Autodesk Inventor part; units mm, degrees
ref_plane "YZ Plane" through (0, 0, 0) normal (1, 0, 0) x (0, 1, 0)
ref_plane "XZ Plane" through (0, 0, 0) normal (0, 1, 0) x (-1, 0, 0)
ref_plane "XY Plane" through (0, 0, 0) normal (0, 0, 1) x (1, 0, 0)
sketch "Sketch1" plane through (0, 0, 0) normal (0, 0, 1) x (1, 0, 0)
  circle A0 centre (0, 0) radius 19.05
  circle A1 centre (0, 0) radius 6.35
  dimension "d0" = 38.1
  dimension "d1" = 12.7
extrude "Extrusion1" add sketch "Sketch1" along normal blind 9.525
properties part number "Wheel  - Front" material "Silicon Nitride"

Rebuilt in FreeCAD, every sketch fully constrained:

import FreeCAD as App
import Part
import Sketcher
Q = App.Units.Quantity

doc = App.newDocument("Part")
body = doc.addObject("PartDesign::Body", "Body")

sketch1 = doc.addObject("Sketcher::SketchObject", "Sketch")
body.addObject(sketch1)
sketch1.AttachmentSupport = (doc.XY_Plane, [""])
sketch1.MapMode = "FlatFace"
sketch1.addGeometry(Part.Circle(App.Vector(0, 0, 0), App.Vector(0, 0, 1), 19.05), False)
sketch1.addGeometry(Part.Circle(App.Vector(0, 0, 0), App.Vector(0, 0, 1), 6.35), False)
sketch1.addConstraint(Sketcher.Constraint("Coincident", 0, 3, -1, 1))
sketch1.addConstraint(Sketcher.Constraint("Coincident", 1, 3, -1, 1))
sketch1.addConstraint(Sketcher.Constraint("Diameter", 0, Q("1.5 in")))
sketch1.addConstraint(Sketcher.Constraint("Diameter", 1, Q("0.5 in")))
pad1 = doc.addObject("PartDesign::Pad", "Pad")
body.addObject(pad1)
pad1.Profile = sketch1
pad1.Length = Q("0.375 in")

doc.recompute()
